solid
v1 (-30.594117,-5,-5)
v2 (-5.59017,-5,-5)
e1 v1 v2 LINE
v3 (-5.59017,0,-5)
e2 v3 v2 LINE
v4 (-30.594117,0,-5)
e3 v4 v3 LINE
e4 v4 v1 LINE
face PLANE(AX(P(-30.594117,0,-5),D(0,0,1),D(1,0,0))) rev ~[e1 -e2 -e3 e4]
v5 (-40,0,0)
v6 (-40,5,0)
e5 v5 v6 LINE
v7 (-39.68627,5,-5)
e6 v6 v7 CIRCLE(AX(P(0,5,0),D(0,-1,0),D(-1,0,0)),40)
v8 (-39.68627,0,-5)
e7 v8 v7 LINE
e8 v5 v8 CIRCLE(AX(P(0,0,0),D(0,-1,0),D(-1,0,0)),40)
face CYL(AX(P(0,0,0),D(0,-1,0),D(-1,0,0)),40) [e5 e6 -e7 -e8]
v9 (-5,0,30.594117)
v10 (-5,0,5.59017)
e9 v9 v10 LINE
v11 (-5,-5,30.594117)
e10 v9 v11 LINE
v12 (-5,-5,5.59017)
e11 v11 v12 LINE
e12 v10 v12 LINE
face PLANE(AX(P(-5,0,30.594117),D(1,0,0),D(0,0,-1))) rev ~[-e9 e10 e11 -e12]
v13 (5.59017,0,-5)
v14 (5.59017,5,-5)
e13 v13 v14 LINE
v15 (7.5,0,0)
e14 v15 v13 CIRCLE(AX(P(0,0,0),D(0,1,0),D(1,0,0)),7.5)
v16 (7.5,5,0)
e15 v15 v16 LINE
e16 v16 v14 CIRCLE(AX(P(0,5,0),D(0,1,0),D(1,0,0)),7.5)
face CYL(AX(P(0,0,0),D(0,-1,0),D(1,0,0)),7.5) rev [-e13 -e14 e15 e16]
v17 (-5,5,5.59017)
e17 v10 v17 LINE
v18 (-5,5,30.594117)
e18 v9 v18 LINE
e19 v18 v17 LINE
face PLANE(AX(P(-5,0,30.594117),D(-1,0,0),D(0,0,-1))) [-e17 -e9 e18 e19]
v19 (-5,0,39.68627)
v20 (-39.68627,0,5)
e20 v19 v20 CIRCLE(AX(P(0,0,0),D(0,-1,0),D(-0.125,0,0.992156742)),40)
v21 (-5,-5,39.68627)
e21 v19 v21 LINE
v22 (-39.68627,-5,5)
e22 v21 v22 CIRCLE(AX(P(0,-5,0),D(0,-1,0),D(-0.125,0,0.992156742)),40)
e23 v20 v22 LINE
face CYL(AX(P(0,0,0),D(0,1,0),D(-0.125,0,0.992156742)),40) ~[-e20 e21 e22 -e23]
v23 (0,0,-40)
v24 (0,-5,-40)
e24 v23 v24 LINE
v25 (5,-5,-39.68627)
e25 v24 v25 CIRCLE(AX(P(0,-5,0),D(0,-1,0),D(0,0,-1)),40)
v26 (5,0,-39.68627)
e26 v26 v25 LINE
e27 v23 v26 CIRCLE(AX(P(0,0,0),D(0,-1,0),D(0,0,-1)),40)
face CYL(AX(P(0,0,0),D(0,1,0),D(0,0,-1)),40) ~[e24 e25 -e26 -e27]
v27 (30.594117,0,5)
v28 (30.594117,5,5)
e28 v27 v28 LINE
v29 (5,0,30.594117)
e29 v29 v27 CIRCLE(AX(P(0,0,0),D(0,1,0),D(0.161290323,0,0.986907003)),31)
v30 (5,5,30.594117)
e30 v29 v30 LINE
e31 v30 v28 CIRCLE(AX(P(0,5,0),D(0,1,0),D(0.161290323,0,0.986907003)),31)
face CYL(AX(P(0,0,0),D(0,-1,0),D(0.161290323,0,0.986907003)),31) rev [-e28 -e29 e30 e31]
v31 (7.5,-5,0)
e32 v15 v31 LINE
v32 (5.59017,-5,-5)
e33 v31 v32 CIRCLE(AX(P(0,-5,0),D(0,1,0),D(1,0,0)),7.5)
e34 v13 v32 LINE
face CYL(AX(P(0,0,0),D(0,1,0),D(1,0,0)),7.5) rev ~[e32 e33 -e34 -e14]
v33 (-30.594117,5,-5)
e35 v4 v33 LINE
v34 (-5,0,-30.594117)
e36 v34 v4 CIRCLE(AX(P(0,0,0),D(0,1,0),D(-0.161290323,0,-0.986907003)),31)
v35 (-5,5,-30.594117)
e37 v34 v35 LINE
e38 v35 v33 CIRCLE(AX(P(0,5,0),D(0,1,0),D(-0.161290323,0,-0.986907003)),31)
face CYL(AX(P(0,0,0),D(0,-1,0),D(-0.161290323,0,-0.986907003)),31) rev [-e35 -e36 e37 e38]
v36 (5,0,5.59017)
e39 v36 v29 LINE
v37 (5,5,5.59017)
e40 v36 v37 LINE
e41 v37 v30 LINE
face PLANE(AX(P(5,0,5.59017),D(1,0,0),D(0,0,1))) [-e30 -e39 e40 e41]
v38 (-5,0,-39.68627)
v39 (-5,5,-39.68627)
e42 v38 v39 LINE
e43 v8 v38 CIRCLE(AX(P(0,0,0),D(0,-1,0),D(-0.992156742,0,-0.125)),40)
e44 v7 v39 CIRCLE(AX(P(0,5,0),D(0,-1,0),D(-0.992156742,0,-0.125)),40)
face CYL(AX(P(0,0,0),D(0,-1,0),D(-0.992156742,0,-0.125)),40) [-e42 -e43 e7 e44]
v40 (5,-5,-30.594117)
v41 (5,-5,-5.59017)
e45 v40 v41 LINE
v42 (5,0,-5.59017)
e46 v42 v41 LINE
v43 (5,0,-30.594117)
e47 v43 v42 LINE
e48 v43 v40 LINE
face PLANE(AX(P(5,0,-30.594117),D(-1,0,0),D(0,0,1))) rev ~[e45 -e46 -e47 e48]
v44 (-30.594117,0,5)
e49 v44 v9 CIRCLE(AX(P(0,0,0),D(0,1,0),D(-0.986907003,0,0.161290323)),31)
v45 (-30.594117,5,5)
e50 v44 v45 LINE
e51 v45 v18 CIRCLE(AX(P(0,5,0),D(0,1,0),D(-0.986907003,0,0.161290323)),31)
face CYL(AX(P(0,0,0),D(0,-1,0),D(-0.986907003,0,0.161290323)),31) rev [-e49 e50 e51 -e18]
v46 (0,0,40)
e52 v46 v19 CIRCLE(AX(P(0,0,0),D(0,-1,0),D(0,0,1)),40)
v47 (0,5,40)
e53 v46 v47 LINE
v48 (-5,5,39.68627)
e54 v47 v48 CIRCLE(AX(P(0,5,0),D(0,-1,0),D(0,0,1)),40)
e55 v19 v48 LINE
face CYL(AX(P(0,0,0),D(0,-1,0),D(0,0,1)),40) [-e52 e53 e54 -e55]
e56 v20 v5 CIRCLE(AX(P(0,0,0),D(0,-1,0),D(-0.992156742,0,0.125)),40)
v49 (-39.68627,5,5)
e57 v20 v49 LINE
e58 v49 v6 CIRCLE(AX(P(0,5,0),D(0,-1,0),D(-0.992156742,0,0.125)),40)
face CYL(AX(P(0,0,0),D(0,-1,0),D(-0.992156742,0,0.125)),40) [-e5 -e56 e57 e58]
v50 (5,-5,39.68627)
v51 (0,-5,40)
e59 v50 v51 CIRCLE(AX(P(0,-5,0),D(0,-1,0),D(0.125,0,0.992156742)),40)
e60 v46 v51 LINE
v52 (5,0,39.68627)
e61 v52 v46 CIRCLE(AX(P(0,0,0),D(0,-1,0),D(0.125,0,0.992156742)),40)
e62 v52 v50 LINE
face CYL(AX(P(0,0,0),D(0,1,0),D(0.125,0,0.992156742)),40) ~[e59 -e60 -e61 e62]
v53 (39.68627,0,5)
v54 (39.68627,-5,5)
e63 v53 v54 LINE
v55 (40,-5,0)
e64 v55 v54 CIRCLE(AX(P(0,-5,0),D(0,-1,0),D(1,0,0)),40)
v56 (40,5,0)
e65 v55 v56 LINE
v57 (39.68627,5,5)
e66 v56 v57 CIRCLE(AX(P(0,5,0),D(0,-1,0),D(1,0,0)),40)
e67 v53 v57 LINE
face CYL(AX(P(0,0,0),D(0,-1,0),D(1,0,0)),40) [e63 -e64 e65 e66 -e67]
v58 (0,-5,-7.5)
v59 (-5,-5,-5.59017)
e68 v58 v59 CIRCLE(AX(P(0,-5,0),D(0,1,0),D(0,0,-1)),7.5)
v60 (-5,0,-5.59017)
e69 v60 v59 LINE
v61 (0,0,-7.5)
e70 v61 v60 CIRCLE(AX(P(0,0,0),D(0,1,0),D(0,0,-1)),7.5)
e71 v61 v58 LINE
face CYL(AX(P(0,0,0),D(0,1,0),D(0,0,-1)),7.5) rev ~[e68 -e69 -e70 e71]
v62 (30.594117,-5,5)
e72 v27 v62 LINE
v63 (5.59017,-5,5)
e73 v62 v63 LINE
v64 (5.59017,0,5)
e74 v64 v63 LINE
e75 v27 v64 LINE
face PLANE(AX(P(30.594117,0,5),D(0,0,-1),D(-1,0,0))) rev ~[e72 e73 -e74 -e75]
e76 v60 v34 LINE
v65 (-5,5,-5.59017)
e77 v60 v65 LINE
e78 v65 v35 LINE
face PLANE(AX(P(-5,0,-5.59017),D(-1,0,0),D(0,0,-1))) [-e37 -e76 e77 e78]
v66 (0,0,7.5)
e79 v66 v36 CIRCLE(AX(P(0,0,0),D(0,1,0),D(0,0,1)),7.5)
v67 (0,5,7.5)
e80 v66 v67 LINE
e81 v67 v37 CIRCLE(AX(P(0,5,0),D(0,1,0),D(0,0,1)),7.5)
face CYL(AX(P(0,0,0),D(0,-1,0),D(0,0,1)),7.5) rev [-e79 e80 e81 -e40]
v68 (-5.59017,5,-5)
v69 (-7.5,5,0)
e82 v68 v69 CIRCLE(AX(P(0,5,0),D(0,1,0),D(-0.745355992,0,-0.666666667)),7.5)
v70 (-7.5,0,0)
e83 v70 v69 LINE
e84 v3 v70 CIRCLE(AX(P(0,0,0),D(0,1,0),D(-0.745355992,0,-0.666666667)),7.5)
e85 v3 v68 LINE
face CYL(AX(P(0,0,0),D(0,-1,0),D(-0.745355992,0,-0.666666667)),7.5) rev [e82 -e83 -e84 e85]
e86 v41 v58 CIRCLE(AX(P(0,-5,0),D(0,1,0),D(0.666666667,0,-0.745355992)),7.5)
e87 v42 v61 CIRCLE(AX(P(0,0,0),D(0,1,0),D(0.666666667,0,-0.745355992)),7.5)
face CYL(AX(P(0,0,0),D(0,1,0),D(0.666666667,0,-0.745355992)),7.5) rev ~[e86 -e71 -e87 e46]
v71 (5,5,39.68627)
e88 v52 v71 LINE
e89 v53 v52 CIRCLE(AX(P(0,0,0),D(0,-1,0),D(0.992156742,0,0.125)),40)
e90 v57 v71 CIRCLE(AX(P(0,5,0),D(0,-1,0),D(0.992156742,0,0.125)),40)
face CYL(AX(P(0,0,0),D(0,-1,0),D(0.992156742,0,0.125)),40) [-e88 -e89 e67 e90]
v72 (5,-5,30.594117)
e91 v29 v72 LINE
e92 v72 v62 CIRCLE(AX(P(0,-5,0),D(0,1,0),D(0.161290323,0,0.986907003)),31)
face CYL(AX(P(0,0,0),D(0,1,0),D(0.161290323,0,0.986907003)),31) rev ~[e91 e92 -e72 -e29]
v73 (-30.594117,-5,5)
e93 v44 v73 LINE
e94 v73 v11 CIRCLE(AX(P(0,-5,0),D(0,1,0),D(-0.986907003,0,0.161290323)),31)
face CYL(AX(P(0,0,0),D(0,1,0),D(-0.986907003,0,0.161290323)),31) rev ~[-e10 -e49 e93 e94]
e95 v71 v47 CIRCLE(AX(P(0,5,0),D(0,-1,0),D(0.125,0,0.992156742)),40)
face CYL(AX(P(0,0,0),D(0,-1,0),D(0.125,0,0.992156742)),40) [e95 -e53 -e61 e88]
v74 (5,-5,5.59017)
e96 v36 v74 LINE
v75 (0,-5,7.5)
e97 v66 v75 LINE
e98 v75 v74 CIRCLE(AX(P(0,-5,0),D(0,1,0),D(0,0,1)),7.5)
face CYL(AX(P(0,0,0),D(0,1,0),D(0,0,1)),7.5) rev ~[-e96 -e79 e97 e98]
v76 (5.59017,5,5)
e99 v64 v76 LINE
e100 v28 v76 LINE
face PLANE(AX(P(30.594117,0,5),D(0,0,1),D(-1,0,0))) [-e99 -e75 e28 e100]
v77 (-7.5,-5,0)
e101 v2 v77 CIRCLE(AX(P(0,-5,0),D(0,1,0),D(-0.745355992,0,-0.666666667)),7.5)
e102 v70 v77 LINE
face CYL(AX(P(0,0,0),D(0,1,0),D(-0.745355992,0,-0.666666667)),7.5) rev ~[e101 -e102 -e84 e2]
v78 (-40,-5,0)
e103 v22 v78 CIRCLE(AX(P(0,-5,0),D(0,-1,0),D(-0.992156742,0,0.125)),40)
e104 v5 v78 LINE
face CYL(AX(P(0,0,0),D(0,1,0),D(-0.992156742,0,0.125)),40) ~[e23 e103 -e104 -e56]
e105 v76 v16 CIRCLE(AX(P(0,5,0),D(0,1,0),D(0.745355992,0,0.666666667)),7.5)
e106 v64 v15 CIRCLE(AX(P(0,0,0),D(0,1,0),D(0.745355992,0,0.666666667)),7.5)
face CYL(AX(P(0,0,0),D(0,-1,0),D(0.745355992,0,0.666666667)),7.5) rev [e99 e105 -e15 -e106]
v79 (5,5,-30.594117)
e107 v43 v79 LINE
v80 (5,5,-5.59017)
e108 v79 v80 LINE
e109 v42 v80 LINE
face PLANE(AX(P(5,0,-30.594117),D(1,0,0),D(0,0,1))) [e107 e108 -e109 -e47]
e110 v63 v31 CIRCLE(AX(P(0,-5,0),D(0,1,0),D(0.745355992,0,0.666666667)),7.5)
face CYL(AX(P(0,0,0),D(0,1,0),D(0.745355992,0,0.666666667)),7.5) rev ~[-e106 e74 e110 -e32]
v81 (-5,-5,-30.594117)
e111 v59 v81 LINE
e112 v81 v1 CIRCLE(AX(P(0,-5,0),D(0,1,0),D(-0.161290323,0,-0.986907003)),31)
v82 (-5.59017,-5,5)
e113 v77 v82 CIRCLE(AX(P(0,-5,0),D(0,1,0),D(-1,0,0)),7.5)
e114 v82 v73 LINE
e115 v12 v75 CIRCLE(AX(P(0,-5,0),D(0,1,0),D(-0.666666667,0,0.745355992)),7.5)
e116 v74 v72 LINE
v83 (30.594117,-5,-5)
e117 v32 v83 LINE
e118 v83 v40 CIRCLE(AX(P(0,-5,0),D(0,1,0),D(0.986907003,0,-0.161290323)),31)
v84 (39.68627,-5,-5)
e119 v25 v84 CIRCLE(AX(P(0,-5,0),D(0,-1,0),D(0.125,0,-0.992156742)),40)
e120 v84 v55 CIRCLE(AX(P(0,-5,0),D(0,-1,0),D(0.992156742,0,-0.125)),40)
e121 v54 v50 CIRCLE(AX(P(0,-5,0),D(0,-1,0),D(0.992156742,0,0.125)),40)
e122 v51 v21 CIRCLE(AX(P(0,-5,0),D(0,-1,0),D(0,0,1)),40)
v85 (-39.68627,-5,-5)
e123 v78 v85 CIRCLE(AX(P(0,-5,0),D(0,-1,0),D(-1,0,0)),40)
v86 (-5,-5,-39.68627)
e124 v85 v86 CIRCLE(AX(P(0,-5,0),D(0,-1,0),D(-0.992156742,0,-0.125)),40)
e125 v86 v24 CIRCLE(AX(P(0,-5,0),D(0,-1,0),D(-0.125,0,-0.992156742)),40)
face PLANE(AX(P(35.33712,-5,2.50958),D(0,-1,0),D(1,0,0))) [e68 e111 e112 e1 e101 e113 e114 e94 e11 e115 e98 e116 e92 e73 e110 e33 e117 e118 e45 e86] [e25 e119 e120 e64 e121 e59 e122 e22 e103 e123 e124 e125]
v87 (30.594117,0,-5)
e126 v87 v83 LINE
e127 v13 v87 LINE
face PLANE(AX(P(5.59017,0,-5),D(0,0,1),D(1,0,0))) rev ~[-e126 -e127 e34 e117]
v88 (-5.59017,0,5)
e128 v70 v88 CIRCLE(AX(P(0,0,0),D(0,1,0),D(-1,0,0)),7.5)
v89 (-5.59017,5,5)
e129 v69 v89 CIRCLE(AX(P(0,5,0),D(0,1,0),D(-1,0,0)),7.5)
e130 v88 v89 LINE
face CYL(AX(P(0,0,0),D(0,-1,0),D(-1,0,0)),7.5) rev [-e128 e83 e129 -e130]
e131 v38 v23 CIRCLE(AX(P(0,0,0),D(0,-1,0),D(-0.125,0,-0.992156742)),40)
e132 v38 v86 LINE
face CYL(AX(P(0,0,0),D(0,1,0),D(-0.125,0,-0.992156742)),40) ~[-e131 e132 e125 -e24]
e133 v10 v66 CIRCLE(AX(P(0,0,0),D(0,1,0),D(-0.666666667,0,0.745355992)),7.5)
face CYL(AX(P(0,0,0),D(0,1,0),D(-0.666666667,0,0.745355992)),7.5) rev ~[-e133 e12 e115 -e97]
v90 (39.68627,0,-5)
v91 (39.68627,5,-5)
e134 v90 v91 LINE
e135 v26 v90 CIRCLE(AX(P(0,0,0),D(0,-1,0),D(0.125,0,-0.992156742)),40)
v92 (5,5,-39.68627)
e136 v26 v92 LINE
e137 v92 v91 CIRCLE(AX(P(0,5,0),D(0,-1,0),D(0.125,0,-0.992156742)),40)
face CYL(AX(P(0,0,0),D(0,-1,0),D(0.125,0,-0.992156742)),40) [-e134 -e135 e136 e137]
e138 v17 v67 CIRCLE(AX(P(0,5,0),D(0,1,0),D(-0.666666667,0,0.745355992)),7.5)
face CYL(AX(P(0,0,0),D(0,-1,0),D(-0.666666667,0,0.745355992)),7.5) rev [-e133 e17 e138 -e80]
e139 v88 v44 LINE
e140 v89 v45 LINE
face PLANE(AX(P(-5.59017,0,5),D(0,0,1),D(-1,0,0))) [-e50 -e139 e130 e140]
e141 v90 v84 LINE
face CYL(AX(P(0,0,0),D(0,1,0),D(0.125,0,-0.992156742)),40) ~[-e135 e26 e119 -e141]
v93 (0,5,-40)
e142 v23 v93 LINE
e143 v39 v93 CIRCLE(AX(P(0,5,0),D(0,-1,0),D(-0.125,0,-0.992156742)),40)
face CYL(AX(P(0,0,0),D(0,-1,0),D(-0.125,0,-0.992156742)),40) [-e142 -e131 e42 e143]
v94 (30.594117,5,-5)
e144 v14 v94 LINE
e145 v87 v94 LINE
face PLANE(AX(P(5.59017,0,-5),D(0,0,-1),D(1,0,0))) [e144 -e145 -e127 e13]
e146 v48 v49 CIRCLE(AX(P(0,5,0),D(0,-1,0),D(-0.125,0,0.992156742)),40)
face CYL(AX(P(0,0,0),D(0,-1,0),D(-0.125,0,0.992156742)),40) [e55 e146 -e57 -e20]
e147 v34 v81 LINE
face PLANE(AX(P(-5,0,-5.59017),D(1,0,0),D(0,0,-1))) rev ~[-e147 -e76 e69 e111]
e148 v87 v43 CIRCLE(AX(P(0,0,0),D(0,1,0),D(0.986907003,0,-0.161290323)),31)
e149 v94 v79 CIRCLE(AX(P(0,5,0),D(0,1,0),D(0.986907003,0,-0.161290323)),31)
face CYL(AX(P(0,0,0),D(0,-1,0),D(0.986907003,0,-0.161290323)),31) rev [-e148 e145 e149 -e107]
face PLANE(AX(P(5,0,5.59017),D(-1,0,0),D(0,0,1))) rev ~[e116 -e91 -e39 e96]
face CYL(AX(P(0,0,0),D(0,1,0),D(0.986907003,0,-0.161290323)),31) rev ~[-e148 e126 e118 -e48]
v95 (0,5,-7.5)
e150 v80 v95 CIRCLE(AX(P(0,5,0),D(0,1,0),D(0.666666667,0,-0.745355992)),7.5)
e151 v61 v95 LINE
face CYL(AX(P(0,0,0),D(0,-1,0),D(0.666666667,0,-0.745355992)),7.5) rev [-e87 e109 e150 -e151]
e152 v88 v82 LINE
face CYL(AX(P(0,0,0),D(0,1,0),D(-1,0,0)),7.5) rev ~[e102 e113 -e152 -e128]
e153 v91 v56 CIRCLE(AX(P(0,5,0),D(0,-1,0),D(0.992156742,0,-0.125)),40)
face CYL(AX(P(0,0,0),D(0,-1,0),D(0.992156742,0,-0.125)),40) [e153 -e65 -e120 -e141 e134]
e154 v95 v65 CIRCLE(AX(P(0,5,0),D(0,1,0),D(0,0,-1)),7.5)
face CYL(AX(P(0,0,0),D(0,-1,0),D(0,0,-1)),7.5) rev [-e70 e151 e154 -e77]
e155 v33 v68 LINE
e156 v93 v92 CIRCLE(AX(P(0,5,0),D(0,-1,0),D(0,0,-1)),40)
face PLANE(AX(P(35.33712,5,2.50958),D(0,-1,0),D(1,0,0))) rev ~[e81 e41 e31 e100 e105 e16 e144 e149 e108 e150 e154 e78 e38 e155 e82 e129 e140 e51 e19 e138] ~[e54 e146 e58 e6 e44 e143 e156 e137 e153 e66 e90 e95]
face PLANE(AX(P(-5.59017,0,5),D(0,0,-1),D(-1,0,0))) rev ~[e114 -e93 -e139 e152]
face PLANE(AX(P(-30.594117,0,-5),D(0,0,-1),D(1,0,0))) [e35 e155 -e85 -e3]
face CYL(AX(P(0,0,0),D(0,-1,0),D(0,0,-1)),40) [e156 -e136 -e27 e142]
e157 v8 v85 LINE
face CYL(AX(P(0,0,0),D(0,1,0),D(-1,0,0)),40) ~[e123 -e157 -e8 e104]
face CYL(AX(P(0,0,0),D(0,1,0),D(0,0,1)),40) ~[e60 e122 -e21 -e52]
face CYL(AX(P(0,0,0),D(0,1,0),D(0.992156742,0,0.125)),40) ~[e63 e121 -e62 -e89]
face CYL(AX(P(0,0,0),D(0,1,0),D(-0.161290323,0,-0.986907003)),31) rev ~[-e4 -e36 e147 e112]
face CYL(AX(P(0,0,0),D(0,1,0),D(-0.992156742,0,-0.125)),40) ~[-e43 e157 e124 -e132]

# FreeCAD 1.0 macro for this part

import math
import FreeCAD as App
import Part
import Sketcher
from FreeCAD import Vector
Q = App.Units.Quantity

doc = App.newDocument("Part")
body = doc.addObject("PartDesign::Body", "Body")

# Sketch on XZ plane
sketch1 = body.newObject("Sketcher::SketchObject", "Sketch")
sketch1.AttachmentSupport = (doc.getObject("XZ_Plane"), [""])
sketch1.MapMode = "FlatFace"
sketch1.addGeometry([
    Part.ArcOfCircle(Part.Circle(Vector(0, 0, 0), Vector(0, 0, 1), 40), math.radians(0), math.radians(7.18)),  # 0
    Part.ArcOfCircle(Part.Circle(Vector(0, 0, 0), Vector(0, 0, 1), 40), math.radians(7), math.radians(83)),  # 1
    Part.ArcOfCircle(Part.Circle(Vector(0, 0, 0), Vector(0, 0, 1), 40), math.radians(82.82), math.radians(90)),  # 2
    Part.ArcOfCircle(Part.Circle(Vector(0, 0, 0), Vector(0, 0, 1), 40), math.radians(90), math.radians(97.18)),  # 3
    Part.ArcOfCircle(Part.Circle(Vector(0, 0, 0), Vector(0, 0, 1), 40), math.radians(97), math.radians(173)),  # 4
    Part.ArcOfCircle(Part.Circle(Vector(0, 0, 0), Vector(0, 0, 1), 40), math.radians(172.82), math.radians(180)),  # 5
    Part.ArcOfCircle(Part.Circle(Vector(0, 0, 0), Vector(0, 0, 1), 40), math.radians(180), math.radians(187.18)),  # 6
    Part.ArcOfCircle(Part.Circle(Vector(0, 0, 0), Vector(0, 0, 1), 40), math.radians(-173), math.radians(-97)),  # 7
    Part.ArcOfCircle(Part.Circle(Vector(0, 0, 0), Vector(0, 0, 1), 40), math.radians(-97.18), math.radians(-90)),  # 8
    Part.ArcOfCircle(Part.Circle(Vector(0, 0, 0), Vector(0, 0, 1), 40), math.radians(-90), math.radians(-82.82)),  # 9
    Part.ArcOfCircle(Part.Circle(Vector(0, 0, 0), Vector(0, 0, 1), 40), math.radians(-83), math.radians(-7)),  # 10
    Part.ArcOfCircle(Part.Circle(Vector(0, 0, 0), Vector(0, 0, 1), 40), math.radians(-7.18), math.radians(0)),  # 11
    Part.ArcOfCircle(Part.Circle(Vector(0, 0, 0), Vector(0, 0, 1), 31), math.radians(99), math.radians(171)),  # 12
    Part.LineSegment(Vector(-5, 31, 0), Vector(-5, 6, 0)),  # 13
    Part.ArcOfCircle(Part.Circle(Vector(0, 0, 0), Vector(0, 0, 1), 8), math.radians(90), math.radians(132)),  # 14
    Part.ArcOfCircle(Part.Circle(Vector(0, 0, 0), Vector(0, 0, 1), 8), math.radians(48), math.radians(90)),  # 15
    Part.LineSegment(Vector(5, 6, 0), Vector(5, 31, 0)),  # 16
    Part.ArcOfCircle(Part.Circle(Vector(0, 0, 0), Vector(0, 0, 1), 31), math.radians(9), math.radians(81)),  # 17
    Part.LineSegment(Vector(31, 5, 0), Vector(6, 5, 0)),  # 18
    Part.ArcOfCircle(Part.Circle(Vector(0, 0, 0), Vector(0, 0, 1), 8), math.radians(0), math.radians(42)),  # 19
    Part.ArcOfCircle(Part.Circle(Vector(0, 0, 0), Vector(0, 0, 1), 8), math.radians(-42), math.radians(0)),  # 20
    Part.LineSegment(Vector(6, -5, 0), Vector(31, -5, 0)),  # 21
    Part.ArcOfCircle(Part.Circle(Vector(0, 0, 0), Vector(0, 0, 1), 31), math.radians(-81), math.radians(-9)),  # 22
    Part.LineSegment(Vector(5, -31, 0), Vector(5, -6, 0)),  # 23
    Part.ArcOfCircle(Part.Circle(Vector(0, 0, 0), Vector(0, 0, 1), 8), math.radians(-90), math.radians(-48)),  # 24
    Part.ArcOfCircle(Part.Circle(Vector(0, 0, 0), Vector(0, 0, 1), 8), math.radians(-132), math.radians(-90)),  # 25
    Part.LineSegment(Vector(-5, -6, 0), Vector(-5, -31, 0)),  # 26
    Part.ArcOfCircle(Part.Circle(Vector(0, 0, 0), Vector(0, 0, 1), 31), math.radians(-171), math.radians(-99)),  # 27
    Part.LineSegment(Vector(-31, -5, 0), Vector(-6, -5, 0)),  # 28
    Part.ArcOfCircle(Part.Circle(Vector(0, 0, 0), Vector(0, 0, 1), 8), math.radians(180), math.radians(222)),  # 29
    Part.ArcOfCircle(Part.Circle(Vector(0, 0, 0), Vector(0, 0, 1), 8), math.radians(138), math.radians(180)),  # 30
    Part.LineSegment(Vector(-6, 5, 0), Vector(-31, 5, 0)),  # 31
], False)
sketch1.addConstraint([
    Sketcher.Constraint("Tangent", 0, 2, 1, 1),
    Sketcher.Constraint("Tangent", 1, 2, 2, 1),
    Sketcher.Constraint("Tangent", 2, 2, 3, 1),
    Sketcher.Constraint("Tangent", 3, 2, 4, 1),
    Sketcher.Constraint("Tangent", 4, 2, 5, 1),
    Sketcher.Constraint("Tangent", 5, 2, 6, 1),
    Sketcher.Constraint("Tangent", 6, 2, 7, 1),
    Sketcher.Constraint("Tangent", 7, 2, 8, 1),
    Sketcher.Constraint("Tangent", 8, 2, 9, 1),
    Sketcher.Constraint("Tangent", 9, 2, 10, 1),
    Sketcher.Constraint("Tangent", 10, 2, 11, 1),
    Sketcher.Constraint("Tangent", 11, 2, 0, 1),
    Sketcher.Constraint("Coincident", 12, 1, 13, 1),
    Sketcher.Constraint("Coincident", 13, 2, 14, 2),
    Sketcher.Constraint("Tangent", 14, 1, 15, 2),
    Sketcher.Constraint("Coincident", 15, 1, 16, 1),
    Sketcher.Constraint("Coincident", 16, 2, 17, 2),
    Sketcher.Constraint("Coincident", 17, 1, 18, 1),
    Sketcher.Constraint("Coincident", 18, 2, 19, 2),
    Sketcher.Constraint("Tangent", 19, 1, 20, 2),
    Sketcher.Constraint("Coincident", 20, 1, 21, 1),
    Sketcher.Constraint("Coincident", 21, 2, 22, 2),
    Sketcher.Constraint("Coincident", 22, 1, 23, 1),
    Sketcher.Constraint("Coincident", 23, 2, 24, 2),
    Sketcher.Constraint("Tangent", 24, 1, 25, 2),
    Sketcher.Constraint("Coincident", 25, 1, 26, 1),
    Sketcher.Constraint("Coincident", 26, 2, 27, 2),
    Sketcher.Constraint("Coincident", 27, 1, 28, 1),
    Sketcher.Constraint("Coincident", 28, 2, 29, 2),
    Sketcher.Constraint("Tangent", 29, 1, 30, 2),
    Sketcher.Constraint("Coincident", 30, 1, 31, 1),
    Sketcher.Constraint("Coincident", 31, 2, 12, 2),
    Sketcher.Constraint("Vertical", 13),
    Sketcher.Constraint("Vertical", 16),
    Sketcher.Constraint("Horizontal", 18),
    Sketcher.Constraint("Horizontal", 21),
    Sketcher.Constraint("Vertical", 23),
    Sketcher.Constraint("Vertical", 26),
    Sketcher.Constraint("Horizontal", 28),
    Sketcher.Constraint("Horizontal", 31),
    Sketcher.Constraint("Coincident", 0, 3, -1, 1),
    Sketcher.Constraint("Coincident", 2, 3, -1, 1),
    Sketcher.Constraint("Coincident", 4, 3, -1, 1),
    Sketcher.Constraint("Coincident", 6, 3, -1, 1),
    Sketcher.Constraint("Coincident", 8, 3, -1, 1),
    Sketcher.Constraint("Coincident", 12, 3, -1, 1),
    Sketcher.Constraint("Coincident", 14, 3, -1, 1),
    Sketcher.Constraint("Coincident", 17, 3, -1, 1),
    Sketcher.Constraint("Coincident", 19, 3, -1, 1),
    Sketcher.Constraint("Coincident", 22, 3, -1, 1),
    Sketcher.Constraint("Coincident", 24, 3, -1, 1),
    Sketcher.Constraint("Coincident", 27, 3, -1, 1),
    Sketcher.Constraint("Coincident", 29, 3, -1, 1),
    Sketcher.Constraint("Equal", 8, 9),
    Sketcher.Constraint("Equal", 14, 15),
    Sketcher.Constraint("Equal", 12, 17),
    Sketcher.Constraint("Equal", 15, 19),
    Sketcher.Constraint("Equal", 19, 20),
    Sketcher.Constraint("Equal", 17, 22),
    Sketcher.Constraint("Equal", 20, 24),
    Sketcher.Constraint("Equal", 24, 25),
    Sketcher.Constraint("Equal", 22, 27),
    Sketcher.Constraint("Equal", 25, 29),
    Sketcher.Constraint("Equal", 29, 30),
    Sketcher.Constraint("PointOnObject", 2, 2, -2),
    Sketcher.Constraint("PointOnObject", 5, 2, -1),
    Sketcher.Constraint("PointOnObject", 8, 2, -2),
    Sketcher.Constraint("PointOnObject", 11, 2, -1),
    Sketcher.Constraint("PointOnObject", 14, 1, -2),
    Sketcher.Constraint("PointOnObject", 19, 1, -1),
    Sketcher.Constraint("PointOnObject", 24, 1, -2),
    Sketcher.Constraint("PointOnObject", 29, 1, -1),
    Sketcher.Constraint("Horizontal", 1, 2, 3, 2),
    Sketcher.Constraint("Horizontal", 0, 2, 4, 2),
    Sketcher.Constraint("Horizontal", 7, 2, 9, 2),
    Sketcher.Constraint("Horizontal", 6, 2, 10, 2),
    Sketcher.Constraint("Horizontal", 13, 2, 15, 1),
    Sketcher.Constraint("Horizontal", 4, 2, 17, 1),
    Sketcher.Constraint("Horizontal", 10, 2, 20, 1),
    Sketcher.Constraint("Horizontal", 23, 2, 25, 1),
    Sketcher.Constraint("Horizontal", 21, 2, 27, 1),
    Sketcher.Constraint("Horizontal", 18, 2, 30, 1),
    Sketcher.Constraint("Vertical", 4, 2, 6, 2),
    Sketcher.Constraint("Vertical", 3, 2, 7, 2),
    Sketcher.Constraint("Vertical", 7, 2, 12, 1),
    Sketcher.Constraint("Vertical", 16, 2, 22, 1),
    Sketcher.Constraint("Equal", 31, 13),
    Sketcher.Constraint("Radius", 0, Q("40 mm")),
    Sketcher.Constraint("Radius", 12, Q("31 mm")),
    Sketcher.Constraint("Radius", 14, Q("7.5 mm")),
    Sketcher.Constraint("DistanceY", -1, 1, 0, 2, Q("5 mm")),
])
pad1 = body.newObject("PartDesign::Pad", "Pad")
pad1.Profile = sketch1
pad1.Length = 10
pad1.Midplane = True

doc.recompute()
